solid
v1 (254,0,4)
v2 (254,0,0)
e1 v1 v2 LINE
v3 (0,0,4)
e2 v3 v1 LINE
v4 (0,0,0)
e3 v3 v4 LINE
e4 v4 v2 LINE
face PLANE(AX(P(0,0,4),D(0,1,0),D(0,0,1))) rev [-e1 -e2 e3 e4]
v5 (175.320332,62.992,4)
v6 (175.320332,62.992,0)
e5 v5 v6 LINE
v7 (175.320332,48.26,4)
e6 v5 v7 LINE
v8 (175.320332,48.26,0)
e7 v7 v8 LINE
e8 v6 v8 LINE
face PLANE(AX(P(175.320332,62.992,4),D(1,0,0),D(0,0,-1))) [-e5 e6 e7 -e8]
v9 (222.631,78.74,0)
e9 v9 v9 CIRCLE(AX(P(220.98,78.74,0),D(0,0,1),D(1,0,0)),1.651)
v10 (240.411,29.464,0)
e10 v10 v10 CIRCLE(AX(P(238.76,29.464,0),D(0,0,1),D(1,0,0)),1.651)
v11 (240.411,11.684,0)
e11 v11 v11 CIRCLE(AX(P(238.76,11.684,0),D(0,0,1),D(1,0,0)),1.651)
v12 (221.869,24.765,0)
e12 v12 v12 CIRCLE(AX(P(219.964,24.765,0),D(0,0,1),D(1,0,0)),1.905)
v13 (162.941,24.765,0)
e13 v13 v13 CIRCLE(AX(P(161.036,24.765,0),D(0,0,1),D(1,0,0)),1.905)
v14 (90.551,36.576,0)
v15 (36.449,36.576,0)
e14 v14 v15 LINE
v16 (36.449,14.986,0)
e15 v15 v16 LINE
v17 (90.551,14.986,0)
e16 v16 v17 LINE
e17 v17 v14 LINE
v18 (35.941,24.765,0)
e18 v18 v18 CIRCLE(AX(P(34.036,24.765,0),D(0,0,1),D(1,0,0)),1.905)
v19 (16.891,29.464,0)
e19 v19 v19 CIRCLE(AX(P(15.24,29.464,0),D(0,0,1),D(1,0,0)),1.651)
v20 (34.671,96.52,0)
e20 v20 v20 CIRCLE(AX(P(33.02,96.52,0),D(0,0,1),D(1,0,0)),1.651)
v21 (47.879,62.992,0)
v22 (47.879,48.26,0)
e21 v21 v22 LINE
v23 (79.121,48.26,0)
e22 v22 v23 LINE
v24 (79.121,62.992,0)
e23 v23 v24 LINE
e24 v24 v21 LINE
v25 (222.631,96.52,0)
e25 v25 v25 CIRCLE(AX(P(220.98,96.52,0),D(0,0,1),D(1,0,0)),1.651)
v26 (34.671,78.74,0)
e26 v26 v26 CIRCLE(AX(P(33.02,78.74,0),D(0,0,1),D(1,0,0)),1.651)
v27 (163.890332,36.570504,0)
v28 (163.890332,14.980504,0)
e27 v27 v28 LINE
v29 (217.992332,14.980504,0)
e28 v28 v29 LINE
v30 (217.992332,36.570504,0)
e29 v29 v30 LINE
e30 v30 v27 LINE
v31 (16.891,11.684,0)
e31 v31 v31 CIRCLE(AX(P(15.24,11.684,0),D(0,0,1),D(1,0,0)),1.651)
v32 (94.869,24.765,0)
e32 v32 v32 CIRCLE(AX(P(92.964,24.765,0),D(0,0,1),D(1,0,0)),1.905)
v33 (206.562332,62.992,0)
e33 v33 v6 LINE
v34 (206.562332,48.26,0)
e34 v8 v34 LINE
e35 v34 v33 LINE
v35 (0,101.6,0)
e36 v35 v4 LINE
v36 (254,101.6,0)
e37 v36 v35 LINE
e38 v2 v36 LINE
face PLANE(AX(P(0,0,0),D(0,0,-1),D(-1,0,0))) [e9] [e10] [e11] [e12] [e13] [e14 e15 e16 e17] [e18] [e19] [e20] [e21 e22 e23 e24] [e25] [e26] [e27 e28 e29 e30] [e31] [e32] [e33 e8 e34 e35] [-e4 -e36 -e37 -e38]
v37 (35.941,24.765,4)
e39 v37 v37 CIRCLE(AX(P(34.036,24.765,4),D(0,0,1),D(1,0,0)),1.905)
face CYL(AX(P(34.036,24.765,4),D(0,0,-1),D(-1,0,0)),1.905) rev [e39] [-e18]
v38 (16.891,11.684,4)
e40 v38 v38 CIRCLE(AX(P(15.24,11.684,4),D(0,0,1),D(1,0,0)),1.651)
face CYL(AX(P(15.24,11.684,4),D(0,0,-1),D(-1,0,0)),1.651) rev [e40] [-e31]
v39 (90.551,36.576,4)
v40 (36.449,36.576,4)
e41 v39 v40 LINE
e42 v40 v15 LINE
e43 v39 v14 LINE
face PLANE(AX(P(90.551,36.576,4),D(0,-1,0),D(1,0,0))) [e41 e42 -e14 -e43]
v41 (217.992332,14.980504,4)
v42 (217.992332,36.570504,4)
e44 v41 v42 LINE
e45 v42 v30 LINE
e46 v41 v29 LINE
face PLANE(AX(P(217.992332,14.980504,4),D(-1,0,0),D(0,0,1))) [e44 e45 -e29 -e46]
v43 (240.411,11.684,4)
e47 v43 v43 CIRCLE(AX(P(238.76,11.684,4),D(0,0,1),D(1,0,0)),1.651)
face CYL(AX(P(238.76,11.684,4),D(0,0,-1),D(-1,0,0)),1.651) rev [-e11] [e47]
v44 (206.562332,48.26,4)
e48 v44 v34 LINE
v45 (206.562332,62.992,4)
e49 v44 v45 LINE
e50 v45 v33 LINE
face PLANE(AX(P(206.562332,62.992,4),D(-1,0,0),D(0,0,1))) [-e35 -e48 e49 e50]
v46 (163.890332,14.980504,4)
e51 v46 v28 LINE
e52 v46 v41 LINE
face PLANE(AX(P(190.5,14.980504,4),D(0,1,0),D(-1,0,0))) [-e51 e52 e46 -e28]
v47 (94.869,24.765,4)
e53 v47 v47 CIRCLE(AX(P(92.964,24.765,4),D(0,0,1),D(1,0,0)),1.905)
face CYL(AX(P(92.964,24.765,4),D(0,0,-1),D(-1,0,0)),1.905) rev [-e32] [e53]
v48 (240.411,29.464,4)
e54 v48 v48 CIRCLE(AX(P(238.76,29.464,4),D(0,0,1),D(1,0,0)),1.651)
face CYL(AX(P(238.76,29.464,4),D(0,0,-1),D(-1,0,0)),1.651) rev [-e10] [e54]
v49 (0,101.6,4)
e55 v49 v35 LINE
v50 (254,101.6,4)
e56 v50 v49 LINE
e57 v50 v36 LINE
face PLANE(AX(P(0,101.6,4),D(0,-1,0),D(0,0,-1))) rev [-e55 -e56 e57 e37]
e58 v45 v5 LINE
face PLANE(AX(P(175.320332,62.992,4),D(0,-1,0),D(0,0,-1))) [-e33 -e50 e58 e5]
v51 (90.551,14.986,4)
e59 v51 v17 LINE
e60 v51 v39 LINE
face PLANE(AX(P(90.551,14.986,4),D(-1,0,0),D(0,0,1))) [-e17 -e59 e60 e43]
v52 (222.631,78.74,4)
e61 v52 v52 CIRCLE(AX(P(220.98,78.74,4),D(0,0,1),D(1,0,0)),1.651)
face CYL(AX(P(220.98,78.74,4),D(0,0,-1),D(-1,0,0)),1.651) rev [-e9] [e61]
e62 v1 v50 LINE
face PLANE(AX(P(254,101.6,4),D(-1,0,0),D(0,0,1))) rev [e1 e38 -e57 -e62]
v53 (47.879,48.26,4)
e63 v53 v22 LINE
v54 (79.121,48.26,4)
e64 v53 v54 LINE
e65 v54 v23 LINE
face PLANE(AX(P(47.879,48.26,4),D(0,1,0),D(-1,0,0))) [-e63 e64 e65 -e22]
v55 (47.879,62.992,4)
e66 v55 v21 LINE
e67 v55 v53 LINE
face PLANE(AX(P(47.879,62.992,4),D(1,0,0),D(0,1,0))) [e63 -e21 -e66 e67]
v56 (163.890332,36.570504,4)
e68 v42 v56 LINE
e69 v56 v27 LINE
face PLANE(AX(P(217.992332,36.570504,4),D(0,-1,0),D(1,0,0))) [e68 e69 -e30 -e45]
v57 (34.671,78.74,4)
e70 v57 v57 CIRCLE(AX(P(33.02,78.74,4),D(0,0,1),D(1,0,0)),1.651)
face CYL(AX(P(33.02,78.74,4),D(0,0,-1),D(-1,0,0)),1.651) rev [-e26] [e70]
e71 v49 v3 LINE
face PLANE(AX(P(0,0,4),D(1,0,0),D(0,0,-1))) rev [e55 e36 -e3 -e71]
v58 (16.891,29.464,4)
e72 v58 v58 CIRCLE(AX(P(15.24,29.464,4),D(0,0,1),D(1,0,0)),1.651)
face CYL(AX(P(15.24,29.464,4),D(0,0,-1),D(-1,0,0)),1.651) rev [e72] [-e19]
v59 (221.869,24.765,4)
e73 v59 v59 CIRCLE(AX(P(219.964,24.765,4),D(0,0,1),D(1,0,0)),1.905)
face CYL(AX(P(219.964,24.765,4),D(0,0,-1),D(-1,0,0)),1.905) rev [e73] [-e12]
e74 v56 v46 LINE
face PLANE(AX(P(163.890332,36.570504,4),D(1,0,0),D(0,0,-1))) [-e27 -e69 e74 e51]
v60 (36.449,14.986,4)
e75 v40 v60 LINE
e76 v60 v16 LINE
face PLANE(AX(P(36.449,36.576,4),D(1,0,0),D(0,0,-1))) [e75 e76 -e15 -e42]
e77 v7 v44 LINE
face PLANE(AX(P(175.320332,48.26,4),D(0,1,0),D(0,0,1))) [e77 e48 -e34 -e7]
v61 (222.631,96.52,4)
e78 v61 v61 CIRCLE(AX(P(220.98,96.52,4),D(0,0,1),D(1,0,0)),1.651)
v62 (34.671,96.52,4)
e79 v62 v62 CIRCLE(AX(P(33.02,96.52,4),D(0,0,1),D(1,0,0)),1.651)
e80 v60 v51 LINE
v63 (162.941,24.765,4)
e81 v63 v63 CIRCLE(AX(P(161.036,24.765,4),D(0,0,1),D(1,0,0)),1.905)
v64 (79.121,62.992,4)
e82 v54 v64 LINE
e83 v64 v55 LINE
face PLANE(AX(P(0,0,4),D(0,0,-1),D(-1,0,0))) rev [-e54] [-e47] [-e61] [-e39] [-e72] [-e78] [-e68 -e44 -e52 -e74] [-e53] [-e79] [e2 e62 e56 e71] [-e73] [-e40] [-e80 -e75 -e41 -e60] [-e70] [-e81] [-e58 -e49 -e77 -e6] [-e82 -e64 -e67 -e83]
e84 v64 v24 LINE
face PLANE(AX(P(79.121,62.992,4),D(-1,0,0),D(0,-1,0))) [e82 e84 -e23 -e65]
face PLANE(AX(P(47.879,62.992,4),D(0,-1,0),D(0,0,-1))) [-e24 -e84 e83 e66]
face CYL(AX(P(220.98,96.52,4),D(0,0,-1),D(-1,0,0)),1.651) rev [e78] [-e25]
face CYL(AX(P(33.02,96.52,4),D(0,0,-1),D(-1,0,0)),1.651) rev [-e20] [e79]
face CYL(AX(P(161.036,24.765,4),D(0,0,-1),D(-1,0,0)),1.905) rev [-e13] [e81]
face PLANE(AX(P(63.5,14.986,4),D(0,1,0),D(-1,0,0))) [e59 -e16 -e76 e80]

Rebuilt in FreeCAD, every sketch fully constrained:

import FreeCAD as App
import Part
import Sketcher
Q = App.Units.Quantity

doc = App.newDocument("Part")
params = doc.addObject("Spreadsheet::Sheet", "Params")
for row, (alias, value) in enumerate([
    ("sketch1_diameter", "0.13 in"),
    ("sketch1_diameter2", "0.15 in"),
    ("sketch1_width", "10 in"),
    ("sketch1_height", "4 in"),
    ("sketch1_width2", "2.13 in"),
    ("pad1_length", "4 mm"),
], start=1):
    params.set(f"A{row}", alias)
    params.set(f"B{row}", "=" + value)
    params.setAlias(f"B{row}", alias)

body = doc.addObject("PartDesign::Body", "Body")

# Sketch on XY plane
sketch1 = body.newObject("Sketcher::SketchObject", "Sketch")
sketch1.AttachmentSupport = (doc.getObject("XY_Plane"), [""])
sketch1.MapMode = "FlatFace"
sketch1.addGeometry([
    Part.LineSegment(App.Vector(0, 101.6, 0), App.Vector(0, 0, 0)),  # 0
    Part.LineSegment(App.Vector(0, 0, 0), App.Vector(254, 0, 0)),  # 1
    Part.LineSegment(App.Vector(254, 0, 0), App.Vector(254, 101.6, 0)),  # 2
    Part.LineSegment(App.Vector(254, 101.6, 0), App.Vector(0, 101.6, 0)),  # 3
    Part.Circle(App.Vector(15.24, 11.684, 0), App.Vector(0, 0, 1), 1.651),  # 4
    Part.Circle(App.Vector(34.036, 24.765, 0), App.Vector(0, 0, 1), 1.905),  # 5
    Part.Circle(App.Vector(15.24, 29.464, 0), App.Vector(0, 0, 1), 1.651),  # 6
    Part.LineSegment(App.Vector(90.551, 14.986, 0), App.Vector(36.449, 14.986, 0)),  # 7
    Part.LineSegment(App.Vector(36.449, 14.986, 0), App.Vector(36.449, 36.576, 0)),  # 8
    Part.LineSegment(App.Vector(36.449, 36.576, 0), App.Vector(90.551, 36.576, 0)),  # 9
    Part.LineSegment(App.Vector(90.551, 36.576, 0), App.Vector(90.551, 14.986, 0)),  # 10
    Part.Circle(App.Vector(92.964, 24.765, 0), App.Vector(0, 0, 1), 1.905),  # 11
    Part.Circle(App.Vector(161.036, 24.765, 0), App.Vector(0, 0, 1), 1.905),  # 12
    Part.Circle(App.Vector(238.76, 11.684, 0), App.Vector(0, 0, 1), 1.651),  # 13
    Part.LineSegment(App.Vector(217.992332, 14.980504, 0), App.Vector(163.890332, 14.980504, 0)),  # 14
    Part.LineSegment(App.Vector(163.890332, 14.980504, 0), App.Vector(163.890332, 36.570504, 0)),  # 15
    Part.LineSegment(App.Vector(163.890332, 36.570504, 0), App.Vector(217.992332, 36.570504, 0)),  # 16
    Part.LineSegment(App.Vector(217.992332, 36.570504, 0), App.Vector(217.992332, 14.980504, 0)),  # 17
    Part.Circle(App.Vector(219.964, 24.765, 0), App.Vector(0, 0, 1), 1.905),  # 18
    Part.Circle(App.Vector(238.76, 29.464, 0), App.Vector(0, 0, 1), 1.651),  # 19
    Part.LineSegment(App.Vector(79.121, 48.26, 0), App.Vector(47.879, 48.26, 0)),  # 20
    Part.LineSegment(App.Vector(47.879, 48.26, 0), App.Vector(47.879, 62.992, 0)),  # 21
    Part.LineSegment(App.Vector(47.879, 62.992, 0), App.Vector(79.121, 62.992, 0)),  # 22
    Part.LineSegment(App.Vector(79.121, 62.992, 0), App.Vector(79.121, 48.26, 0)),  # 23
    Part.Circle(App.Vector(33.02, 78.74, 0), App.Vector(0, 0, 1), 1.651),  # 24
    Part.Circle(App.Vector(33.02, 96.52, 0), App.Vector(0, 0, 1), 1.651),  # 25
    Part.LineSegment(App.Vector(206.562332, 48.26, 0), App.Vector(175.320332, 48.26, 0)),  # 26
    Part.LineSegment(App.Vector(175.320332, 48.26, 0), App.Vector(175.320332, 62.992, 0)),  # 27
    Part.LineSegment(App.Vector(175.320332, 62.992, 0), App.Vector(206.562332, 62.992, 0)),  # 28
    Part.LineSegment(App.Vector(206.562332, 62.992, 0), App.Vector(206.562332, 48.26, 0)),  # 29
    Part.Circle(App.Vector(220.98, 78.74, 0), App.Vector(0, 0, 1), 1.651),  # 30
    Part.Circle(App.Vector(220.98, 96.52, 0), App.Vector(0, 0, 1), 1.651),  # 31
], False)
sketch1.addConstraint([
    Sketcher.Constraint("Coincident", 0, 2, 1, 1),
    Sketcher.Constraint("Coincident", 1, 2, 2, 1),
    Sketcher.Constraint("Coincident", 2, 2, 3, 1),
    Sketcher.Constraint("Coincident", 3, 2, 0, 1),
    Sketcher.Constraint("Coincident", 7, 2, 8, 1),
    Sketcher.Constraint("Coincident", 8, 2, 9, 1),
    Sketcher.Constraint("Coincident", 9, 2, 10, 1),
    Sketcher.Constraint("Coincident", 10, 2, 7, 1),
    Sketcher.Constraint("Coincident", 14, 2, 15, 1),
    Sketcher.Constraint("Coincident", 15, 2, 16, 1),
    Sketcher.Constraint("Coincident", 16, 2, 17, 1),
    Sketcher.Constraint("Coincident", 17, 2, 14, 1),
    Sketcher.Constraint("Coincident", 20, 2, 21, 1),
    Sketcher.Constraint("Coincident", 21, 2, 22, 1),
    Sketcher.Constraint("Coincident", 22, 2, 23, 1),
    Sketcher.Constraint("Coincident", 23, 2, 20, 1),
    Sketcher.Constraint("Coincident", 26, 2, 27, 1),
    Sketcher.Constraint("Coincident", 27, 2, 28, 1),
    Sketcher.Constraint("Coincident", 28, 2, 29, 1),
    Sketcher.Constraint("Coincident", 29, 2, 26, 1),
    Sketcher.Constraint("Vertical", 0),
    Sketcher.Constraint("Horizontal", 1),
    Sketcher.Constraint("Vertical", 2),
    Sketcher.Constraint("Horizontal", 3),
    Sketcher.Constraint("Horizontal", 7),
    Sketcher.Constraint("Vertical", 8),
    Sketcher.Constraint("Horizontal", 9),
    Sketcher.Constraint("Vertical", 10),
    Sketcher.Constraint("Horizontal", 14),
    Sketcher.Constraint("Vertical", 15),
    Sketcher.Constraint("Horizontal", 16),
    Sketcher.Constraint("Vertical", 17),
    Sketcher.Constraint("Horizontal", 20),
    Sketcher.Constraint("Vertical", 21),
    Sketcher.Constraint("Horizontal", 22),
    Sketcher.Constraint("Vertical", 23),
    Sketcher.Constraint("Horizontal", 26),
    Sketcher.Constraint("Vertical", 27),
    Sketcher.Constraint("Horizontal", 28),
    Sketcher.Constraint("Vertical", 29),
    Sketcher.Constraint("Coincident", 0, 2, -1, 1),
    Sketcher.Constraint("Equal", 4, 6),
    Sketcher.Constraint("Equal", 5, 11),
    Sketcher.Constraint("Equal", 11, 12),
    Sketcher.Constraint("Equal", 6, 13),
    Sketcher.Constraint("Equal", 12, 18),
    Sketcher.Constraint("Equal", 13, 19),
    Sketcher.Constraint("Equal", 19, 24),
    Sketcher.Constraint("Equal", 24, 25),
    Sketcher.Constraint("Equal", 25, 30),
    Sketcher.Constraint("Equal", 30, 31),
    Sketcher.Constraint("Horizontal", 5, 3, 11, 3),
    Sketcher.Constraint("Horizontal", 11, 3, 12, 3),
    Sketcher.Constraint("Horizontal", 4, 3, 13, 3),
    Sketcher.Constraint("Horizontal", 12, 3, 18, 3),
    Sketcher.Constraint("Horizontal", 6, 3, 19, 3),
    Sketcher.Constraint("Horizontal", 24, 3, 30, 3),
    Sketcher.Constraint("Horizontal", 25, 3, 31, 3),
    Sketcher.Constraint("Horizontal", 23, 2, 26, 2),
    Sketcher.Constraint("Horizontal", 22, 2, 27, 2),
    Sketcher.Constraint("Vertical", 4, 3, 6, 3),
    Sketcher.Constraint("Vertical", 13, 3, 19, 3),
    Sketcher.Constraint("Vertical", 24, 3, 25, 3),
    Sketcher.Constraint("Vertical", 30, 3, 31, 3),
    Sketcher.Constraint("Equal", 9, 14),
    Sketcher.Constraint("Equal", 22, 26),
    Sketcher.Constraint("Equal", 10, 15),
    Sketcher.Constraint("Diameter", 4, Q("0.13 in")),
    Sketcher.Constraint("Diameter", 5, Q("0.15 in")),
    Sketcher.Constraint("DistanceX", 1, 1, 1, 2, Q("10 in")),
    Sketcher.Constraint("DistanceY", 0, 2, 0, 1, Q("4 in")),
    Sketcher.Constraint("DistanceX", 5, 3, 12, 3, Q("5 in")),
    Sketcher.Constraint("DistanceX", 11, 3, 18, 3, Q("5 in")),
    Sketcher.Constraint("DistanceX", 7, 2, 7, 1, Q("2.13 in")),
    Sketcher.Constraint("DistanceX", 20, 2, 20, 1, Q("1.23 in")),
    Sketcher.Constraint("DistanceY", 8, 1, 8, 2, Q("0.85 in")),
    Sketcher.Constraint("DistanceY", 21, 1, 21, 2, Q("0.58 in")),
    Sketcher.Constraint("DistanceX", -1, 1, 4, 3, Q("0.6 in")),
    Sketcher.Constraint("DistanceX", -1, 1, 13, 3, Q("9.4 in")),
    Sketcher.Constraint("DistanceX", -1, 1, 24, 3, Q("1.3 in")),
    Sketcher.Constraint("DistanceY", -1, 1, 24, 3, Q("3.1 in")),
    Sketcher.Constraint("DistanceY", -1, 1, 25, 3, Q("3.8 in")),
    Sketcher.Constraint("DistanceX", -1, 1, 30, 3, Q("8.7 in")),
    Sketcher.Constraint("DistanceY", -1, 1, 20, 2, Q("1.9 in")),
    Sketcher.Constraint("DistanceY", 4, 3, 6, 3, Q("0.7 in")),
    Sketcher.Constraint("DistanceY", -1, 1, 4, 3, Q("0.46 in")),
    Sketcher.Constraint("DistanceX", -1, 1, 5, 3, Q("1.34 in")),
    Sketcher.Constraint("DistanceX", -1, 1, 11, 3, Q("3.66 in")),
    Sketcher.Constraint("DistanceY", -1, 1, 7, 2, Q("0.59 in")),
    Sketcher.Constraint("DistanceX", 8, 2, 20, 2, Q("0.45 in")),
    Sketcher.Constraint("DistanceX", 15, 2, 26, 2, Q("0.45 in")),
    Sketcher.Constraint("DistanceY", -1, 1, 5, 3, Q("0.975 in")),
    Sketcher.Constraint("DistanceX", -1, 1, 7, 2, Q("1.435 in")),
    Sketcher.Constraint("DistanceX", -1, 1, 14, 2, Q("163.890332 mm")),
    Sketcher.Constraint("DistanceY", -1, 1, 14, 2, Q("14.980504 mm")),
])
sketch1.setExpression("Constraints[67]", "Params.sketch1_diameter")
sketch1.setExpression("Constraints[68]", "Params.sketch1_diameter2")
sketch1.setExpression("Constraints[69]", "Params.sketch1_width")
sketch1.setExpression("Constraints[70]", "Params.sketch1_height")
sketch1.setExpression("Constraints[73]", "Params.sketch1_width2")
pad1 = body.newObject("PartDesign::Pad", "Pad")
pad1.Profile = sketch1
pad1.setExpression("Length", "Params.pad1_length")

doc.recompute()
